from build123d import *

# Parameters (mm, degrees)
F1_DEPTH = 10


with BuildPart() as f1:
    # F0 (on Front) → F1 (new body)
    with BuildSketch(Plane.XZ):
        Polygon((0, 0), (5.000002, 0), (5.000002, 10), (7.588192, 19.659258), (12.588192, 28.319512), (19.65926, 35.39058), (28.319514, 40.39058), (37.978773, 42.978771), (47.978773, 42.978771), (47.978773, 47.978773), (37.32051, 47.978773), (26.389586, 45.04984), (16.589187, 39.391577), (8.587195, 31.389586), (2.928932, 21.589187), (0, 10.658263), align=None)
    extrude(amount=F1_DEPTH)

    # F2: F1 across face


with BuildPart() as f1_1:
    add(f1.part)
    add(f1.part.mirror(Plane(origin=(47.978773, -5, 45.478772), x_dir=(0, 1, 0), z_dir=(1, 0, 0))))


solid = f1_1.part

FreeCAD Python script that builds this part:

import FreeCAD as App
import Part
import Sketcher

V = App.Vector
Q = App.Units.Quantity

doc = App.newDocument("Part")
body = doc.addObject("PartDesign::Body", "Body")

# Sketch on XZ plane
sketch1 = body.newObject("Sketcher::SketchObject", "Sketch")
sketch1.AttachmentSupport = (doc.getObject("XZ_Plane"), [""])
sketch1.MapMode = "FlatFace"
sketch1.addGeometry([
    Part.LineSegment(V(0, 0, 0), V(5, 0, 0)),  # 0
    Part.LineSegment(V(5, 0, 0), V(5, 10, 0)),  # 1
    Part.LineSegment(V(5, 10, 0), V(8, 20, 0)),  # 2
    Part.LineSegment(V(8, 20, 0), V(13, 28, 0)),  # 3
    Part.LineSegment(V(13, 28, 0), V(20, 35, 0)),  # 4
    Part.LineSegment(V(20, 35, 0), V(28, 40, 0)),  # 5
    Part.LineSegment(V(28, 40, 0), V(38, 43, 0)),  # 6
    Part.LineSegment(V(38, 43, 0), V(48, 43, 0)),  # 7
    Part.LineSegment(V(48, 43, 0), V(48, 48, 0)),  # 8
    Part.LineSegment(V(48, 48, 0), V(37, 48, 0)),  # 9
    Part.LineSegment(V(37, 48, 0), V(26, 45, 0)),  # 10
    Part.LineSegment(V(26, 45, 0), V(17, 39, 0)),  # 11
    Part.LineSegment(V(17, 39, 0), V(9, 31, 0)),  # 12
    Part.LineSegment(V(9, 31, 0), V(3, 22, 0)),  # 13
    Part.LineSegment(V(3, 22, 0), V(0, 11, 0)),  # 14
    Part.LineSegment(V(0, 11, 0), V(0, 0, 0)),  # 15
], False)
sketch1.addConstraint([
    Sketcher.Constraint("Coincident", 0, 2, 1, 1),
    Sketcher.Constraint("Coincident", 1, 2, 2, 1),
    Sketcher.Constraint("Coincident", 2, 2, 3, 1),
    Sketcher.Constraint("Coincident", 3, 2, 4, 1),
    Sketcher.Constraint("Coincident", 4, 2, 5, 1),
    Sketcher.Constraint("Coincident", 5, 2, 6, 1),
    Sketcher.Constraint("Coincident", 6, 2, 7, 1),
    Sketcher.Constraint("Coincident", 7, 2, 8, 1),
    Sketcher.Constraint("Coincident", 8, 2, 9, 1),
    Sketcher.Constraint("Coincident", 9, 2, 10, 1),
    Sketcher.Constraint("Coincident", 10, 2, 11, 1),
    Sketcher.Constraint("Coincident", 11, 2, 12, 1),
    Sketcher.Constraint("Coincident", 12, 2, 13, 1),
    Sketcher.Constraint("Coincident", 13, 2, 14, 1),
    Sketcher.Constraint("Coincident", 14, 2, 15, 1),
    Sketcher.Constraint("Coincident", 15, 2, 0, 1),
    Sketcher.Constraint("Horizontal", 0),
    Sketcher.Constraint("Vertical", 1),
    Sketcher.Constraint("Horizontal", 7),
    Sketcher.Constraint("Vertical", 8),
    Sketcher.Constraint("Horizontal", 9),
    Sketcher.Constraint("Vertical", 15),
    Sketcher.Constraint("Coincident", 15, 2, -1, 1),
    Sketcher.Constraint("Parallel", 6, 10),
    Sketcher.Constraint("Parallel", 5, 11),
    Sketcher.Constraint("Parallel", 4, 12),
    Sketcher.Constraint("Parallel", 3, 13),
    Sketcher.Constraint("Parallel", 2, 14),
    Sketcher.Constraint("Equal", 7, 1),
    Sketcher.Constraint("Equal", 0, 8),
    Sketcher.Constraint("Equal", 9, 15),
    Sketcher.Constraint("Equal", 2, 3),
    Sketcher.Constraint("Equal", 3, 4),
    Sketcher.Constraint("Equal", 4, 5),
    Sketcher.Constraint("Equal", 5, 6),
    Sketcher.Constraint("Equal", 10, 11),
    Sketcher.Constraint("Equal", 11, 12),
    Sketcher.Constraint("Equal", 12, 13),
    Sketcher.Constraint("Equal", 13, 14),
    Sketcher.Constraint("DistanceX", 7, 1, 7, 2, 10.0),
    Sketcher.Constraint("DistanceY", 8, 1, 8, 2, 5.000002),
    Sketcher.Constraint("Angle", 2, Q("75.000002 deg")),
    Sketcher.Constraint("Angle", 3, Q("60 deg")),
    Sketcher.Constraint("Angle", 4, Q("45 deg")),
    Sketcher.Constraint("Angle", 5, Q("30 deg")),
    Sketcher.Constraint("Distance", 2, 10.0),
    Sketcher.Constraint("DistanceX", 11, 2, 10, 2, 9.800399),
])
pad1 = body.newObject("PartDesign::Pad", "Pad")
pad1.Profile = sketch1
pad1.Length = 10
body2 = doc.addObject("PartDesign::Body", "Body001")
doc.recompute()

body2.BaseFeature = body
doc.recompute()

mirroring = doc.addObject("Part::Mirroring", "Mirroring")
mirroring.Source = body
mirroring.Base = V(47.978773, -5, 45.478772)
mirroring.Normal = V(1, 0, 0)
body3 = doc.addObject("PartDesign::Body", "Body002")
body3.BaseFeature = mirroring
boolean = body2.newObject("PartDesign::Boolean", "Boolean")
boolean.Type = "Fuse"
boolean.addObjects([body3])
doc.recompute()
mirroring.Visibility = False

doc.recompute()
